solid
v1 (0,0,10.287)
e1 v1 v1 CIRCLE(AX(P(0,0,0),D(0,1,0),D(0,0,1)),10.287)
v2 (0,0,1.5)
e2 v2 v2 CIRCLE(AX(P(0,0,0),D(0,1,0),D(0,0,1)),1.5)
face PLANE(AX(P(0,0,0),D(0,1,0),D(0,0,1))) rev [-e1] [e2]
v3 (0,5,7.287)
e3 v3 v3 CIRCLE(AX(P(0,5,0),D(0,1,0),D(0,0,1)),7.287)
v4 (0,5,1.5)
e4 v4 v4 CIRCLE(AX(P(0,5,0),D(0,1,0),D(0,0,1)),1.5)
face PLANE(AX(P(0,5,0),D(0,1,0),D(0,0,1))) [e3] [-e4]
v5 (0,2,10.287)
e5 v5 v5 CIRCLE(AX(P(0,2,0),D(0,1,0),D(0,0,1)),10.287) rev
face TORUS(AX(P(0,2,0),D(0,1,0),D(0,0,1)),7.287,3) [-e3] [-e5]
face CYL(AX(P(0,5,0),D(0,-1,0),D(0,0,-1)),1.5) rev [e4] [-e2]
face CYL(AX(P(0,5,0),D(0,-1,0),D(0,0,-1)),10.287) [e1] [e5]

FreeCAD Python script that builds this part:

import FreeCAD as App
import Part
import Sketcher

V = App.Vector


def edges_at(feature, points):
    """Names of the edges that pass closest to the given points."""
    edges = feature.Shape.Edges
    near = lambda p: min(range(len(edges)), key=lambda i: edges[i].distToShape(Part.Vertex(*p))[0])
    return sorted({f"Edge{near(p) + 1}" for p in points})

doc = App.newDocument("Part")
body = doc.addObject("PartDesign::Body", "Body")

# Sketch on XZ plane
sketch1 = body.newObject("Sketcher::SketchObject", "Sketch")
sketch1.AttachmentSupport = (doc.getObject("XZ_Plane"), [""])
sketch1.MapMode = "FlatFace"
sketch1.addGeometry([
    Part.Circle(V(0, 0, 0), V(0, 0, 1), 10.287),
    Part.Circle(V(0, 0, 0), V(0, 0, 1), 1.5),
], False)
sketch1.addConstraint([
    Sketcher.Constraint("Coincident", 0, 3, -1, 1),
    Sketcher.Constraint("Coincident", 1, 3, -1, 1),
    Sketcher.Constraint("Diameter", 1, 3.0),
    Sketcher.Constraint("Diameter", 0, 20.574),
])
pad1 = body.newObject("PartDesign::Pad", "Pad")
pad1.Profile = sketch1
pad1.Length = 5
pad1.Reversed = True
doc.recompute()

fillet = body.newObject("PartDesign::Fillet", "Fillet")
fillet.Base = (pad1, edges_at(pad1, [(0, 5, -10.287)]))
fillet.Radius = 3

doc.recompute()
